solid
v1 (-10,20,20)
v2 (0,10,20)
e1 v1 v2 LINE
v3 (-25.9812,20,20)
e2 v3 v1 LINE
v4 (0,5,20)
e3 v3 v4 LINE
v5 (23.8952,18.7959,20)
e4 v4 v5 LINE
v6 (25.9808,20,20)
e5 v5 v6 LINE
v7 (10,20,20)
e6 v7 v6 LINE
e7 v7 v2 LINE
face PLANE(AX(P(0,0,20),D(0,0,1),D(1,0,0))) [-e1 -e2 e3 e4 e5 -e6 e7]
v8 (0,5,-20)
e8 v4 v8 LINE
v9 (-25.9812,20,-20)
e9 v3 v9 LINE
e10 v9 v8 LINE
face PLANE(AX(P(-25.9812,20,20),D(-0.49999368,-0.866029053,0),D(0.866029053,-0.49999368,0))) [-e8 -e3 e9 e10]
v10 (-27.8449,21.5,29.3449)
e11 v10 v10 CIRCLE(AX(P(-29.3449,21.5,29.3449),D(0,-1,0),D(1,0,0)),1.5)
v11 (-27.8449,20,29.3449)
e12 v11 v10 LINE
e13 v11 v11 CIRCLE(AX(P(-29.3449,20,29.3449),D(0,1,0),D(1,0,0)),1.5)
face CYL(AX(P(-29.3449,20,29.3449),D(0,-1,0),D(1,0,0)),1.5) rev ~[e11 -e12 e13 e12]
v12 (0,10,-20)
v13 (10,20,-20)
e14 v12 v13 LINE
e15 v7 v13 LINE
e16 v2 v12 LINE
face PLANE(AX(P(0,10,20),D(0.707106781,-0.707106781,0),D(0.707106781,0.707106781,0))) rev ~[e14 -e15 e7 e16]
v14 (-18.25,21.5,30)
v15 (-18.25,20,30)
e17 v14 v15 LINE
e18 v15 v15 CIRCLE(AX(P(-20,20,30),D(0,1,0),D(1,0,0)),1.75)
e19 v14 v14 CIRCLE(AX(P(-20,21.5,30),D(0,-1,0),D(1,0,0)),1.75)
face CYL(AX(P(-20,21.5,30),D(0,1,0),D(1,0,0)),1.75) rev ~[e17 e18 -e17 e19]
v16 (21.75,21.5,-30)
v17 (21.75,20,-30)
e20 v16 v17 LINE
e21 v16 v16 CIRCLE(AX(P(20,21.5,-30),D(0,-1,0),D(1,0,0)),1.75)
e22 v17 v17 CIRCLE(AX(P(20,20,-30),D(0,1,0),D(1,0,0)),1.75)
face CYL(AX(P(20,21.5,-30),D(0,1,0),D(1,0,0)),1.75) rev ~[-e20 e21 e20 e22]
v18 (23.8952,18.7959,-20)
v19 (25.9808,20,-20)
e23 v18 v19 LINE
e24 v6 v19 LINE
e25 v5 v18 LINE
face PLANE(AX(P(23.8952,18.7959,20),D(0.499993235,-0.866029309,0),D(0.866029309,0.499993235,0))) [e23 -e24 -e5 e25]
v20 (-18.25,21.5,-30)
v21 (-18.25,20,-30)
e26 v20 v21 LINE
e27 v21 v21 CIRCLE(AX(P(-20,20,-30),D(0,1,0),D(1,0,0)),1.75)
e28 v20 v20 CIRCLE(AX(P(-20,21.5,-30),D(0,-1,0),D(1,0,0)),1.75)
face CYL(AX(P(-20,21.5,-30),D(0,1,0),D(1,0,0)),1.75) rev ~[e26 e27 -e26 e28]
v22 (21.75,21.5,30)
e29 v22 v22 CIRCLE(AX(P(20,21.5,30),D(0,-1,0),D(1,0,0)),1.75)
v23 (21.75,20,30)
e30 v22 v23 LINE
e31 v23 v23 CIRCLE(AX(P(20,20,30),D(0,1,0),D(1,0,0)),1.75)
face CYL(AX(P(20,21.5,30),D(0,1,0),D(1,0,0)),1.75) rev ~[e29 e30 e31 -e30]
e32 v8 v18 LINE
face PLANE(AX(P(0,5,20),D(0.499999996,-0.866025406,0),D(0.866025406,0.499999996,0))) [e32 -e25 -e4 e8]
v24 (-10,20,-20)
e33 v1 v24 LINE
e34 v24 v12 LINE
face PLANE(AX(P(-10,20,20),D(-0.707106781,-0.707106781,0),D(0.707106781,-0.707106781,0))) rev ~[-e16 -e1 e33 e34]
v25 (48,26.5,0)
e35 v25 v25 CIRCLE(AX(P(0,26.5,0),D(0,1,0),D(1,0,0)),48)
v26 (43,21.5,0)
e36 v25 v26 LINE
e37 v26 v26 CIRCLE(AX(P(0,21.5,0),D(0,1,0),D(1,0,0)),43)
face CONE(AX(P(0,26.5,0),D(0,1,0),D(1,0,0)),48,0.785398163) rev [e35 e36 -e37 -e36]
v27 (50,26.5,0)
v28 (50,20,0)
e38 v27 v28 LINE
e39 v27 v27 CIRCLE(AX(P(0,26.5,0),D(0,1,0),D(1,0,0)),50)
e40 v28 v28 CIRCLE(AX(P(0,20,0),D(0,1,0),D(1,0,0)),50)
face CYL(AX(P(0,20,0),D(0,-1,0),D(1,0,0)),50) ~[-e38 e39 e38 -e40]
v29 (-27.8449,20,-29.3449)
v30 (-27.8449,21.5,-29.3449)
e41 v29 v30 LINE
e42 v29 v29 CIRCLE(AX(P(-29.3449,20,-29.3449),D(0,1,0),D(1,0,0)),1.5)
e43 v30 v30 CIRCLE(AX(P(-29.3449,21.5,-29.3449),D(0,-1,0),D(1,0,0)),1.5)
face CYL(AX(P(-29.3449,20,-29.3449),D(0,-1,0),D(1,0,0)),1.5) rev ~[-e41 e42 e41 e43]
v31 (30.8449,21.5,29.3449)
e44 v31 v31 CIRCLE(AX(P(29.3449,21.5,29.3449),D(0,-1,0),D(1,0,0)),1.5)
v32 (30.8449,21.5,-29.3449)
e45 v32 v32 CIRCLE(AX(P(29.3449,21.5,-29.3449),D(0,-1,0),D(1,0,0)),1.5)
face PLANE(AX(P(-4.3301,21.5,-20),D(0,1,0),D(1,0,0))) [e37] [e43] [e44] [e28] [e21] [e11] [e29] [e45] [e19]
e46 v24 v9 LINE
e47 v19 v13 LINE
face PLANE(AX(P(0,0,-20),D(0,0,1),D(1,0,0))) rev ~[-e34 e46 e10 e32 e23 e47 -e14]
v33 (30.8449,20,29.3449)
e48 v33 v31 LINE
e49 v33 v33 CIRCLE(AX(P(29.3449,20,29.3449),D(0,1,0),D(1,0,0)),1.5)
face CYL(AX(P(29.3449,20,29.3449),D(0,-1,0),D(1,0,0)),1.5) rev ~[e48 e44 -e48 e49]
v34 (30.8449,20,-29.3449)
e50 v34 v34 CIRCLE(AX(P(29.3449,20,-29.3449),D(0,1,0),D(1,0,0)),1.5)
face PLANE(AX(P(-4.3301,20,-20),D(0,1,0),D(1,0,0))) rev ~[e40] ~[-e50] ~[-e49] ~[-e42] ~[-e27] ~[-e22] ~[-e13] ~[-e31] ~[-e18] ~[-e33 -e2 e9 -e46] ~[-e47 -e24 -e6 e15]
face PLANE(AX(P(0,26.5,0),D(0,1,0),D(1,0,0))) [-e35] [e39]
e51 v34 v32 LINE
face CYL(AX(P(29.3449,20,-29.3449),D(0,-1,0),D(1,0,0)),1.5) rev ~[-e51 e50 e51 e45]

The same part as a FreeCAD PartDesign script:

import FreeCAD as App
import Part
import Sketcher

V = App.Vector
Q = App.Units.Quantity


def add_polygon(sketch, points):
    """Adds a closed chain of lines whose ends are joined by coincident constraints."""
    first, n = sketch.GeometryCount, len(points)
    for a, b in zip(points, points[1:] + points[:1]):
        sketch.addGeometry(Part.LineSegment(App.Vector(*a, 0), App.Vector(*b, 0)), False)
    for i in range(n):
        sketch.addConstraint(Sketcher.Constraint("Coincident", first + i, 2, first + (i + 1) % n, 1))

doc = App.newDocument("Part")
params = doc.addObject("Spreadsheet::Sheet", "Params")
for row, (alias, value) in enumerate([
    ("sketch1_diameter", "100 mm"),
    ("pad1_length", "1.5 mm"),
    ("sketch2_width", "7 mm"),
    ("sketch2_width2", "2 mm"),
    ("sketch2_height", "5 mm"),
    ("revolution_angle", "360 deg"),
    ("sketch3_diameter", "3.5 mm"),
    ("pocket1_length", "1.5 mm"),
    ("sketch4_length", "25 mm"),
    ("pad2_length", "40 mm"),
    ("pad3_length", "40 mm"),
    ("sketch6_width", "20 mm"),
    ("pocket2_length", "40 mm"),
    ("sketch7_diameter", "3 mm"),
    ("pocket3_length", "40 mm"),
], start=1):
    params.set(f"A{row}", alias)
    params.set(f"B{row}", "=" + value)
    params.setAlias(f"B{row}", alias)

body = doc.addObject("PartDesign::Body", "Body")

# Sketch on XZ plane
sketch1 = body.newObject("Sketcher::SketchObject", "Sketch")
sketch1.AttachmentSupport = (doc.getObject("XZ_Plane"), [""])
sketch1.MapMode = "FlatFace"
sketch1.AttachmentOffset = App.Placement(V(0, 0, -20), App.Rotation())
sketch1.addGeometry(Part.Circle(V(0, 0, 0), V(0, 0, 1), 50), False)
sketch1.addConstraint([
    Sketcher.Constraint("Coincident", 0, 3, -1, 1),
    Sketcher.Constraint("Diameter", 0, 100.0),
])
sketch1.setExpression("Constraints[1]", "Params.sketch1_diameter")
pad1 = body.newObject("PartDesign::Pad", "Pad")
pad1.Profile = sketch1
pad1.setExpression("Length", "Params.pad1_length")
pad1.Reversed = True

# Sketch on XY plane
sketch2 = body.newObject("Sketcher::SketchObject", "Sketch001")
sketch2.AttachmentSupport = (doc.getObject("XY_Plane"), [""])
sketch2.MapMode = "FlatFace"
add_polygon(sketch2, [(43, 21.5), (50, 21.5), (50, 26.5), (48, 26.5)])  # lines 0-3
sketch2.addConstraint([
    Sketcher.Constraint("Horizontal", 0),
    Sketcher.Constraint("Vertical", 1),
    Sketcher.Constraint("Horizontal", 2),
    Sketcher.Constraint("DistanceX", 0, 1, 0, 2, 7.0),
    Sketcher.Constraint("DistanceX", 2, 2, 2, 1, 2.0),
    Sketcher.Constraint("DistanceY", 1, 1, 1, 2, 5.0),
    Sketcher.Constraint("DistanceX", -1, 1, 0, 2, 50.0),
    Sketcher.Constraint("DistanceY", -1, 1, 0, 2, 21.5),
])
sketch2.setExpression("Constraints[7]", "Params.sketch2_width")
sketch2.setExpression("Constraints[8]", "Params.sketch2_width2")
sketch2.setExpression("Constraints[9]", "Params.sketch2_height")
revolution = body.newObject("PartDesign::Revolution", "Revolution")
revolution.Profile = sketch2
revolution.ReferenceAxis = (sketch2, ["V_Axis"])
revolution.setExpression("Angle", "Params.revolution_angle")

# Sketch on XZ plane
sketch3 = body.newObject("Sketcher::SketchObject", "Sketch002")
sketch3.AttachmentSupport = (doc.getObject("XZ_Plane"), [""])
sketch3.MapMode = "FlatFace"
sketch3.AttachmentOffset = App.Placement(V(0, 0, -21.5), App.Rotation())
sketch3.addGeometry([
    Part.Circle(V(20, 30, 0), V(0, 0, 1), 1.8),
    Part.Circle(V(20, -30, 0), V(0, 0, 1), 1.8),
    Part.Circle(V(-20, 30, 0), V(0, 0, 1), 1.8),
    Part.Circle(V(-20, -30, 0), V(0, 0, 1), 1.8),
], False)
sketch3.addConstraint([
    Sketcher.Constraint("Equal", 0, 1),
    Sketcher.Constraint("Equal", 1, 2),
    Sketcher.Constraint("Equal", 2, 3),
    Sketcher.Constraint("Symmetric", 1, 3, 2, 3, -1, 1),
    Sketcher.Constraint("Symmetric", 0, 3, 3, 3, -1, 1),
    Sketcher.Constraint("Symmetric", 0, 3, 2, 3, -2),
    Sketcher.Constraint("Diameter", 0, 3.5),
    Sketcher.Constraint("DistanceX", -1, 1, 0, 3, 20.0),
    Sketcher.Constraint("DistanceY", -1, 1, 0, 3, 30.0),
])
sketch3.setExpression("Constraints[6]", "Params.sketch3_diameter")
pocket1 = body.newObject("PartDesign::Pocket", "Pocket")
pocket1.Profile = sketch3
pocket1.setExpression("Length", "Params.pocket1_length")
pocket1.Reversed = True

# Sketch on XY plane
sketch4 = body.newObject("Sketcher::SketchObject", "Sketch003")
sketch4.AttachmentSupport = (doc.getObject("XY_Plane"), [""])
sketch4.MapMode = "FlatFace"
add_polygon(sketch4, [(-5, 20), (-22, 20), (0, 8), (22, 20), (5, 20), (0, 12)])  # lines 0-5
sketch4.addConstraint([
    Sketcher.Constraint("Horizontal", 0),
    Sketcher.Constraint("Horizontal", 3),
    Sketcher.Constraint("Symmetric", 0, 2, 2, 2, -2),
    Sketcher.Constraint("PointOnObject", 1, 2, -2),
    Sketcher.Constraint("PointOnObject", 4, 2, -2),
    Sketcher.Constraint("Equal", 0, 3),
    Sketcher.Constraint("Angle", 1, Q("-30 deg")),
    Sketcher.Constraint("Distance", 1, 25.0),
    Sketcher.Constraint("DistanceX", -1, 1, 3, 2, 5.0),
    Sketcher.Constraint("DistanceY", 1, 2, 4, 2, 5.0),
    Sketcher.Constraint("DistanceY", -1, 1, 0, 2, 20.0),
])
sketch4.setExpression("Constraints[13]", "Params.sketch4_length")
pad2 = body.newObject("PartDesign::Pad", "Pad001")
pad2.Profile = sketch4
pad2.setExpression("Length", "Params.pad2_length")
pad2.Midplane = True

# Sketch on XY plane
sketch5 = body.newObject("Sketcher::SketchObject", "Sketch004")
sketch5.AttachmentSupport = (doc.getObject("XY_Plane"), [""])
sketch5.MapMode = "FlatFace"
sketch5.AttachmentOffset = App.Placement(V(0, 0, 20), App.Rotation())
add_polygon(sketch5, [(-26, 20), (0, 5), (23.9, 18.8), (26, 20)])  # lines 0-3
sketch5.addConstraint([
    Sketcher.Constraint("Horizontal", 3),
    Sketcher.Constraint("PointOnObject", 0, 2, -2),
    Sketcher.Constraint("Parallel", 1, 2),
    Sketcher.Constraint("DistanceY", 0, 2, 2, 2, 15.0),
    Sketcher.Constraint("DistanceX", 3, 2, 3, 1, 51.962),
    Sketcher.Constraint("Angle", 0, Q("-29.9996 deg")),
    Sketcher.Constraint("DistanceY", -1, 1, 0, 2, 5.0),
    Sketcher.Constraint("DistanceY", -1, 1, 1, 2, 18.796),
])
pad3 = body.newObject("PartDesign::Pad", "Pad002")
pad3.Profile = sketch5
pad3.setExpression("Length", "Params.pad3_length")
pad3.Reversed = True

# Sketch on XY plane
sketch6 = body.newObject("Sketcher::SketchObject", "Sketch005")
sketch6.AttachmentSupport = (doc.getObject("XY_Plane"), [""])
sketch6.MapMode = "FlatFace"
sketch6.AttachmentOffset = App.Placement(V(0, 0, 20), App.Rotation())
add_polygon(sketch6, [(-10, 20), (0, 10), (10, 20)])  # lines 0-2
sketch6.addConstraint([
    Sketcher.Constraint("Horizontal", 2),
    Sketcher.Constraint("PointOnObject", 0, 2, -2),
    Sketcher.Constraint("Perpendicular", 0, 1),
    Sketcher.Constraint("Equal", 0, 1),
    Sketcher.Constraint("DistanceX", 2, 2, 2, 1, 20.0),
    Sketcher.Constraint("DistanceY", -1, 1, 1, 2, 20.0),
])
sketch6.setExpression("Constraints[7]", "Params.sketch6_width")
pocket2 = body.newObject("PartDesign::Pocket", "Pocket001")
pocket2.Profile = sketch6
pocket2.setExpression("Length", "Params.pocket2_length")

# Sketch on XZ plane
sketch7 = body.newObject("Sketcher::SketchObject", "Sketch006")
sketch7.AttachmentSupport = (doc.getObject("XZ_Plane"), [""])
sketch7.MapMode = "FlatFace"
sketch7.AttachmentOffset = App.Placement(V(0, 0, -20), App.Rotation())
sketch7.addGeometry([
    Part.Circle(V(-29.3, 29.3, 0), V(0, 0, 1), 1.5),
    Part.Circle(V(29.3, 29.3, 0), V(0, 0, 1), 1.5),
    Part.Circle(V(-29.3, -29.3, 0), V(0, 0, 1), 1.5),
    Part.Circle(V(29.3, -29.3, 0), V(0, 0, 1), 1.5),
], False)
sketch7.addConstraint([
    Sketcher.Constraint("Equal", 0, 1),
    Sketcher.Constraint("Equal", 1, 2),
    Sketcher.Constraint("Equal", 2, 3),
    Sketcher.Constraint("Symmetric", 1, 3, 2, 3, -1, 1),
    Sketcher.Constraint("Symmetric", 0, 3, 3, 3, -1, 1),
    Sketcher.Constraint("Symmetric", 0, 3, 1, 3, -2),
    Sketcher.Constraint("Diameter", 0, 3.0),
    Sketcher.Constraint("DistanceX", 0, 3, -1, 1, 29.345),
    Sketcher.Constraint("DistanceY", -1, 1, 0, 3, 29.345),
])
sketch7.setExpression("Constraints[6]", "Params.sketch7_diameter")
pocket3 = body.newObject("PartDesign::Pocket", "Pocket002")
pocket3.Profile = sketch7
pocket3.setExpression("Length", "Params.pocket3_length")

doc.recompute()
